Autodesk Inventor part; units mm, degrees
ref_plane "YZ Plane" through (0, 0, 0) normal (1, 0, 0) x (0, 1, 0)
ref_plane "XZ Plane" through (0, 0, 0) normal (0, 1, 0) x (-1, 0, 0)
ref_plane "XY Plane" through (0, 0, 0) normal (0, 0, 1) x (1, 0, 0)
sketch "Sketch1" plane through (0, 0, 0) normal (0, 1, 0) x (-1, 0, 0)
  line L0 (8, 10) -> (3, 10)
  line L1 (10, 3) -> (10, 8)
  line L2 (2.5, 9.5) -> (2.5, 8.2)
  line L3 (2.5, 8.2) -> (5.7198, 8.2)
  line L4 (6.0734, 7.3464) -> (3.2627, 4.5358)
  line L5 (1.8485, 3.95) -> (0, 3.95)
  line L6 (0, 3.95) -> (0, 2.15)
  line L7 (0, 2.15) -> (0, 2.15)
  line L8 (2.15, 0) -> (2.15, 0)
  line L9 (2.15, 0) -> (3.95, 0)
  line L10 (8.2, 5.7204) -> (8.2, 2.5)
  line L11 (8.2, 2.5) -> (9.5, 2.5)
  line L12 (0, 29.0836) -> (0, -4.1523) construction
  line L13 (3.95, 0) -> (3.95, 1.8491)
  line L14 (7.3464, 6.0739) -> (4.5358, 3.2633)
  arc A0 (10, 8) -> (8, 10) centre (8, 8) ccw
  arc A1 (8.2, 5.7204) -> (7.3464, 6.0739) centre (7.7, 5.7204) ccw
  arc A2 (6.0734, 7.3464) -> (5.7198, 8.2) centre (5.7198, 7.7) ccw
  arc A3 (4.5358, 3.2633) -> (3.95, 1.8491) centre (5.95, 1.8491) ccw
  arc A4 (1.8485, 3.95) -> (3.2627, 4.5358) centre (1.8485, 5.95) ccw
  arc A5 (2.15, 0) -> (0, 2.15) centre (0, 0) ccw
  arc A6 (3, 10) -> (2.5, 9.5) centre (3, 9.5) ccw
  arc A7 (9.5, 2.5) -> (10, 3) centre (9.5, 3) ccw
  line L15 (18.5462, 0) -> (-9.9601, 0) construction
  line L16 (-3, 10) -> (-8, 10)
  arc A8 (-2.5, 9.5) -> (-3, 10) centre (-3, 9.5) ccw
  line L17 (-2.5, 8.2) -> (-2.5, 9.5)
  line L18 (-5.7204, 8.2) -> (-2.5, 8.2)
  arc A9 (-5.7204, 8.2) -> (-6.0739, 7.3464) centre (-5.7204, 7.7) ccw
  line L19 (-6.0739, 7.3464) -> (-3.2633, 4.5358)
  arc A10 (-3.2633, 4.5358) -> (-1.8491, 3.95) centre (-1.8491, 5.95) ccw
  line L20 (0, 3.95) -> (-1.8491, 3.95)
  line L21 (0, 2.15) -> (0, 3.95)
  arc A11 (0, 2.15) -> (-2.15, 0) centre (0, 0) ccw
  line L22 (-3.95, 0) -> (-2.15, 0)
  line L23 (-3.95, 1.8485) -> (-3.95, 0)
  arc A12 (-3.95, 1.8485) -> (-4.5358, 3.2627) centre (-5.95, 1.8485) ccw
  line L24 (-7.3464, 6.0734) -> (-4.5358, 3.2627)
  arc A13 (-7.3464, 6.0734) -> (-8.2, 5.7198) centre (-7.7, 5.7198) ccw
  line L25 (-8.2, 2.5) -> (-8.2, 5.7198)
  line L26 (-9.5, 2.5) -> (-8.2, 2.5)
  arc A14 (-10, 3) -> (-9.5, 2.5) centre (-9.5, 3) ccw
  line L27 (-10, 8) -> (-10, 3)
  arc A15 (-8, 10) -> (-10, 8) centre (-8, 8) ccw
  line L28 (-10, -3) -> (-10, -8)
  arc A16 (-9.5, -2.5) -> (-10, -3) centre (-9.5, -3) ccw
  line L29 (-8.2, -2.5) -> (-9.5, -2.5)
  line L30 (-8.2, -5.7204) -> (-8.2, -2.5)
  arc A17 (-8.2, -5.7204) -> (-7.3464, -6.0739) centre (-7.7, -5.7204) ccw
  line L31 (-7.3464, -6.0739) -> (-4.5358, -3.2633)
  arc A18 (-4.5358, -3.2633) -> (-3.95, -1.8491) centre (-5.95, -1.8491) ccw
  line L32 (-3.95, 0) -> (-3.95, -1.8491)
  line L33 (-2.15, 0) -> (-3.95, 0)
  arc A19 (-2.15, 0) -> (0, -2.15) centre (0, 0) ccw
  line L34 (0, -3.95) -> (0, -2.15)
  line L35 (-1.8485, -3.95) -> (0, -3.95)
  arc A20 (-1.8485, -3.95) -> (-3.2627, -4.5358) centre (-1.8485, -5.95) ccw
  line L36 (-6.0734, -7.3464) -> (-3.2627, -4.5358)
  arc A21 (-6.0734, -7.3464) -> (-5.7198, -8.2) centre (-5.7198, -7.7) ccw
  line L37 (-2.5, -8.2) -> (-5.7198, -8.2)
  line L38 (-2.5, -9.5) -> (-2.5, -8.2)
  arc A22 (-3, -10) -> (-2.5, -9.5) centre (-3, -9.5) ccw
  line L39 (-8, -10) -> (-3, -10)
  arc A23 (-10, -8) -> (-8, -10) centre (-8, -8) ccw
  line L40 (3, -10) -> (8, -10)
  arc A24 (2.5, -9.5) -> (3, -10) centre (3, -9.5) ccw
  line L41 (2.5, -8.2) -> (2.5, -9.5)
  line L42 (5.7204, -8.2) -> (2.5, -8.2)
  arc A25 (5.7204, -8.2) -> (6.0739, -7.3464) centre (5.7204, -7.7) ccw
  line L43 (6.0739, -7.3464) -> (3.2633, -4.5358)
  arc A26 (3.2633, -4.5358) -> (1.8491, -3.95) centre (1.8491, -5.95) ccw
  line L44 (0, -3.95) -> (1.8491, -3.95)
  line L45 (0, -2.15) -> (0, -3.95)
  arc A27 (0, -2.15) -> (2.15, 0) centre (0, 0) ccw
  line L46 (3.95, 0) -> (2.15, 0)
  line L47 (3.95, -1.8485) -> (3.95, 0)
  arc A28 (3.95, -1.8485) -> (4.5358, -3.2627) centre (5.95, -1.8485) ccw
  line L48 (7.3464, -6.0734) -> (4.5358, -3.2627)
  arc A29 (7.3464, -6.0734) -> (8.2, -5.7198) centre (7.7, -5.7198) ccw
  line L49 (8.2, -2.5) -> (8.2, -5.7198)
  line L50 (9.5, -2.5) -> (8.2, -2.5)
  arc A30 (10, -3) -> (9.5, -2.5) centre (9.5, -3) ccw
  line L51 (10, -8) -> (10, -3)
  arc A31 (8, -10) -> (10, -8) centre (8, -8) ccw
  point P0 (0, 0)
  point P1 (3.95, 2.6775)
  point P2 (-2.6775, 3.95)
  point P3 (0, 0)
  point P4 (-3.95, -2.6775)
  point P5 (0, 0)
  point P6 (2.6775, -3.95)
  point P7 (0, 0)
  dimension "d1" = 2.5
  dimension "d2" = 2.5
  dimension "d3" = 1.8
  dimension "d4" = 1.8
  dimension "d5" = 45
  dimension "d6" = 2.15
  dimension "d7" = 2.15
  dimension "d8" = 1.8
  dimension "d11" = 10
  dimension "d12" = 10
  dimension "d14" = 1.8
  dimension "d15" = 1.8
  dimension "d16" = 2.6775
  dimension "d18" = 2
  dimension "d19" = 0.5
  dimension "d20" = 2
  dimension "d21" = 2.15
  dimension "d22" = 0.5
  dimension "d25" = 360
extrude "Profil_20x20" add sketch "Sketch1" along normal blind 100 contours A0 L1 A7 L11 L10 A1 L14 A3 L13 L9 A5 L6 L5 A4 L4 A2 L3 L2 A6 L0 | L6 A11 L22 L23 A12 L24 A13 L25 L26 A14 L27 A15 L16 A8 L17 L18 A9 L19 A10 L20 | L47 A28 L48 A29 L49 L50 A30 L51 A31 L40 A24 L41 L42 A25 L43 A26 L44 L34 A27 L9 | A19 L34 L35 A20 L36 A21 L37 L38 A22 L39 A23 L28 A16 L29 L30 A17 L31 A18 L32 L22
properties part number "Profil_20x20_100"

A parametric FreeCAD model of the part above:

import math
import FreeCAD as App
import Part
import Sketcher

doc = App.newDocument("Part")
body = doc.addObject("PartDesign::Body", "Body")

sketch1 = doc.addObject("Sketcher::SketchObject", "Sketch")
body.addObject(sketch1)
sketch1.AttachmentSupport = (doc.XZ_Plane, [""])
sketch1.MapMode = "FlatFace"
sketch1.addGeometry(Part.ArcOfCircle(Part.Circle(App.Vector(-8, 8, 0), App.Vector(0, 0, 1), 2), math.radians(90), math.radians(180)), False)
sketch1.addGeometry(Part.LineSegment(App.Vector(-8, 10, 0), App.Vector(-3, 10, 0)), False)
sketch1.addGeometry(Part.ArcOfCircle(Part.Circle(App.Vector(-3, 9.5, 0), App.Vector(0, 0, 1), 0.5), math.radians(0), math.radians(90)), False)
sketch1.addGeometry(Part.LineSegment(App.Vector(-2.5, 9.5, 0), App.Vector(-2.5, 8.2, 0)), False)
sketch1.addGeometry(Part.LineSegment(App.Vector(-2.5, 8.2, 0), App.Vector(-5.7198, 8.2, 0)), False)
sketch1.addGeometry(Part.ArcOfCircle(Part.Circle(App.Vector(-5.7198, 7.7, 0), App.Vector(0, 0, 1), 0.500066), math.radians(90), math.radians(225)), False)
sketch1.addGeometry(Part.LineSegment(App.Vector(-6.0734, 7.3464, 0), App.Vector(-3.2627, 4.5358, 0)), False)
sketch1.addGeometry(Part.ArcOfCircle(Part.Circle(App.Vector(-1.8485, 5.95, 0), App.Vector(0, 0, 1), 2), math.radians(-135), math.radians(-90)), False)
sketch1.addGeometry(Part.LineSegment(App.Vector(-1.8485, 3.95, 0), App.Vector(1.8491, 3.95, 0)), False)
sketch1.addGeometry(Part.ArcOfCircle(Part.Circle(App.Vector(1.8491, 5.95, 0), App.Vector(0, 0, 1), 1.999981), math.radians(-90), math.radians(-45)), False)
sketch1.addGeometry(Part.LineSegment(App.Vector(3.2633, 4.5358, 0), App.Vector(6.0739, 7.3464, 0)), False)
sketch1.addGeometry(Part.ArcOfCircle(Part.Circle(App.Vector(5.7204, 7.7, 0), App.Vector(0, 0, 1), 0.5), math.radians(-45.008103), math.radians(90)), False)
sketch1.addGeometry(Part.LineSegment(App.Vector(5.7204, 8.2, 0), App.Vector(2.5, 8.2, 0)), False)
sketch1.addGeometry(Part.LineSegment(App.Vector(2.5, 8.2, 0), App.Vector(2.5, 9.5, 0)), False)
sketch1.addGeometry(Part.ArcOfCircle(Part.Circle(App.Vector(3, 9.5, 0), App.Vector(0, 0, 1), 0.5), math.radians(90), math.radians(180)), False)
sketch1.addGeometry(Part.LineSegment(App.Vector(3, 10, 0), App.Vector(8, 10, 0)), False)
sketch1.addGeometry(Part.ArcOfCircle(Part.Circle(App.Vector(8, 8, 0), App.Vector(0, 0, 1), 2), math.radians(0), math.radians(90)), False)
sketch1.addGeometry(Part.LineSegment(App.Vector(10, 8, 0), App.Vector(10, 3, 0)), False)
sketch1.addGeometry(Part.ArcOfCircle(Part.Circle(App.Vector(9.5, 3, 0), App.Vector(0, 0, 1), 0.5), math.radians(-90), math.radians(0)), False)
sketch1.addGeometry(Part.LineSegment(App.Vector(9.5, 2.5, 0), App.Vector(8.2, 2.5, 0)), False)
sketch1.addGeometry(Part.LineSegment(App.Vector(8.2, 2.5, 0), App.Vector(8.2, 5.7198, 0)), False)
sketch1.addGeometry(Part.ArcOfCircle(Part.Circle(App.Vector(7.7, 5.7198, 0), App.Vector(0, 0, 1), 0.500066), math.radians(0), math.radians(135)), False)
sketch1.addGeometry(Part.LineSegment(App.Vector(7.3464, 6.0734, 0), App.Vector(4.5358, 3.2627, 0)), False)
sketch1.addGeometry(Part.ArcOfCircle(Part.Circle(App.Vector(5.95, 1.8485, 0), App.Vector(0, 0, 1), 2), math.radians(135), math.radians(180)), False)
sketch1.addGeometry(Part.LineSegment(App.Vector(3.95, 1.8485, 0), App.Vector(3.95, -1.8491, 0)), False)
sketch1.addGeometry(Part.ArcOfCircle(Part.Circle(App.Vector(5.95, -1.8491, 0), App.Vector(0, 0, 1), 1.999981), math.radians(180), math.radians(225)), False)
sketch1.addGeometry(Part.LineSegment(App.Vector(4.5358, -3.2633, 0), App.Vector(7.3464, -6.0739, 0)), False)
sketch1.addGeometry(Part.ArcOfCircle(Part.Circle(App.Vector(7.7, -5.7204, 0), App.Vector(0, 0, 1), 0.5), math.radians(-135.008103), math.radians(0)), False)
sketch1.addGeometry(Part.LineSegment(App.Vector(8.2, -5.7204, 0), App.Vector(8.2, -2.5, 0)), False)
sketch1.addGeometry(Part.LineSegment(App.Vector(8.2, -2.5, 0), App.Vector(9.5, -2.5, 0)), False)
sketch1.addGeometry(Part.ArcOfCircle(Part.Circle(App.Vector(9.5, -3, 0), App.Vector(0, 0, 1), 0.5), math.radians(0), math.radians(90)), False)
sketch1.addGeometry(Part.LineSegment(App.Vector(10, -3, 0), App.Vector(10, -8, 0)), False)
sketch1.addGeometry(Part.ArcOfCircle(Part.Circle(App.Vector(8, -8, 0), App.Vector(0, 0, 1), 2), math.radians(-90), math.radians(0)), False)
sketch1.addGeometry(Part.LineSegment(App.Vector(8, -10, 0), App.Vector(3, -10, 0)), False)
sketch1.addGeometry(Part.ArcOfCircle(Part.Circle(App.Vector(3, -9.5, 0), App.Vector(0, 0, 1), 0.5), math.radians(180), math.radians(270)), False)
sketch1.addGeometry(Part.LineSegment(App.Vector(2.5, -9.5, 0), App.Vector(2.5, -8.2, 0)), False)
sketch1.addGeometry(Part.LineSegment(App.Vector(2.5, -8.2, 0), App.Vector(5.7198, -8.2, 0)), False)
sketch1.addGeometry(Part.ArcOfCircle(Part.Circle(App.Vector(5.7198, -7.7, 0), App.Vector(0, 0, 1), 0.500066), math.radians(-90), math.radians(45)), False)
sketch1.addGeometry(Part.LineSegment(App.Vector(6.0734, -7.3464, 0), App.Vector(3.2627, -4.5358, 0)), False)
sketch1.addGeometry(Part.ArcOfCircle(Part.Circle(App.Vector(1.8485, -5.95, 0), App.Vector(0, 0, 1), 2), math.radians(45), math.radians(90)), False)
sketch1.addGeometry(Part.LineSegment(App.Vector(1.8485, -3.95, 0), App.Vector(-1.8491, -3.95, 0)), False)
sketch1.addGeometry(Part.ArcOfCircle(Part.Circle(App.Vector(-1.8491, -5.95, 0), App.Vector(0, 0, 1), 1.999981), math.radians(90), math.radians(135)), False)
sketch1.addGeometry(Part.LineSegment(App.Vector(-3.2633, -4.5358, 0), App.Vector(-6.0739, -7.3464, 0)), False)
sketch1.addGeometry(Part.ArcOfCircle(Part.Circle(App.Vector(-5.7204, -7.7, 0), App.Vector(0, 0, 1), 0.5), math.radians(134.991897), math.radians(270)), False)
sketch1.addGeometry(Part.LineSegment(App.Vector(-5.7204, -8.2, 0), App.Vector(-2.5, -8.2, 0)), False)
sketch1.addGeometry(Part.LineSegment(App.Vector(-2.5, -8.2, 0), App.Vector(-2.5, -9.5, 0)), False)
sketch1.addGeometry(Part.ArcOfCircle(Part.Circle(App.Vector(-3, -9.5, 0), App.Vector(0, 0, 1), 0.5), math.radians(-90), math.radians(0)), False)
sketch1.addGeometry(Part.LineSegment(App.Vector(-3, -10, 0), App.Vector(-8, -10, 0)), False)
sketch1.addGeometry(Part.ArcOfCircle(Part.Circle(App.Vector(-8, -8, 0), App.Vector(0, 0, 1), 2), math.radians(180), math.radians(270)), False)
sketch1.addGeometry(Part.LineSegment(App.Vector(-10, -8, 0), App.Vector(-10, -3, 0)), False)
sketch1.addGeometry(Part.ArcOfCircle(Part.Circle(App.Vector(-9.5, -3, 0), App.Vector(0, 0, 1), 0.5), math.radians(90), math.radians(180)), False)
sketch1.addGeometry(Part.LineSegment(App.Vector(-9.5, -2.5, 0), App.Vector(-8.2, -2.5, 0)), False)
sketch1.addGeometry(Part.LineSegment(App.Vector(-8.2, -2.5, 0), App.Vector(-8.2, -5.7198, 0)), False)
sketch1.addGeometry(Part.ArcOfCircle(Part.Circle(App.Vector(-7.7, -5.7198, 0), App.Vector(0, 0, 1), 0.500066), math.radians(180), math.radians(315)), False)
sketch1.addGeometry(Part.LineSegment(App.Vector(-7.3464, -6.0734, 0), App.Vector(-4.5358, -3.2627, 0)), False)
sketch1.addGeometry(Part.ArcOfCircle(Part.Circle(App.Vector(-5.95, -1.8485, 0), App.Vector(0, 0, 1), 2), math.radians(-45), math.radians(0)), False)
sketch1.addGeometry(Part.LineSegment(App.Vector(-3.95, -1.8485, 0), App.Vector(-3.95, 1.8491, 0)), False)
sketch1.addGeometry(Part.ArcOfCircle(Part.Circle(App.Vector(-5.95, 1.8491, 0), App.Vector(0, 0, 1), 1.999981), math.radians(0), math.radians(45)), False)
sketch1.addGeometry(Part.LineSegment(App.Vector(-4.5358, 3.2633, 0), App.Vector(-7.3464, 6.0739, 0)), False)
sketch1.addGeometry(Part.ArcOfCircle(Part.Circle(App.Vector(-7.7, 5.7204, 0), App.Vector(0, 0, 1), 0.5), math.radians(44.991897), math.radians(180)), False)
sketch1.addGeometry(Part.LineSegment(App.Vector(-8.2, 5.7204, 0), App.Vector(-8.2, 2.5, 0)), False)
sketch1.addGeometry(Part.LineSegment(App.Vector(-8.2, 2.5, 0), App.Vector(-9.5, 2.5, 0)), False)
sketch1.addGeometry(Part.ArcOfCircle(Part.Circle(App.Vector(-9.5, 3, 0), App.Vector(0, 0, 1), 0.5), math.radians(180), math.radians(270)), False)
sketch1.addGeometry(Part.LineSegment(App.Vector(-10, 3, 0), App.Vector(-10, 8, 0)), False)
sketch1.addGeometry(Part.Circle(App.Vector(0, 0, 0), App.Vector(0, 0, 1), 2.15), False)
sketch1.addConstraint(Sketcher.Constraint("Tangent", 0, 1, 1, 1))
sketch1.addConstraint(Sketcher.Constraint("Tangent", 1, 2, 2, 2))
sketch1.addConstraint(Sketcher.Constraint("Tangent", 2, 1, 3, 1))
sketch1.addConstraint(Sketcher.Constraint("Coincident", 3, 2, 4, 1))
sketch1.addConstraint(Sketcher.Constraint("Tangent", 4, 2, 5, 1))
sketch1.addConstraint(Sketcher.Constraint("Tangent", 5, 2, 6, 1))
sketch1.addConstraint(Sketcher.Constraint("Tangent", 6, 2, 7, 1))
sketch1.addConstraint(Sketcher.Constraint("Tangent", 7, 2, 8, 1))
sketch1.addConstraint(Sketcher.Constraint("Tangent", 8, 2, 9, 1))
sketch1.addConstraint(Sketcher.Constraint("Tangent", 9, 2, 10, 1))
sketch1.addConstraint(Sketcher.Constraint("Tangent", 10, 2, 11, 1))
sketch1.addConstraint(Sketcher.Constraint("Tangent", 11, 2, 12, 1))
sketch1.addConstraint(Sketcher.Constraint("Coincident", 12, 2, 13, 1))
sketch1.addConstraint(Sketcher.Constraint("Tangent", 13, 2, 14, 2))
sketch1.addConstraint(Sketcher.Constraint("Tangent", 14, 1, 15, 1))
sketch1.addConstraint(Sketcher.Constraint("Tangent", 15, 2, 16, 2))
sketch1.addConstraint(Sketcher.Constraint("Tangent", 16, 1, 17, 1))
sketch1.addConstraint(Sketcher.Constraint("Tangent", 17, 2, 18, 2))
sketch1.addConstraint(Sketcher.Constraint("Tangent", 18, 1, 19, 1))
sketch1.addConstraint(Sketcher.Constraint("Coincident", 19, 2, 20, 1))
sketch1.addConstraint(Sketcher.Constraint("Tangent", 20, 2, 21, 1))
sketch1.addConstraint(Sketcher.Constraint("Tangent", 21, 2, 22, 1))
sketch1.addConstraint(Sketcher.Constraint("Tangent", 22, 2, 23, 1))
sketch1.addConstraint(Sketcher.Constraint("Tangent", 23, 2, 24, 1))
sketch1.addConstraint(Sketcher.Constraint("Tangent", 24, 2, 25, 1))
sketch1.addConstraint(Sketcher.Constraint("Tangent", 25, 2, 26, 1))
sketch1.addConstraint(Sketcher.Constraint("Tangent", 26, 2, 27, 1))
sketch1.addConstraint(Sketcher.Constraint("Tangent", 27, 2, 28, 1))
sketch1.addConstraint(Sketcher.Constraint("Coincident", 28, 2, 29, 1))
sketch1.addConstraint(Sketcher.Constraint("Tangent", 29, 2, 30, 2))
sketch1.addConstraint(Sketcher.Constraint("Tangent", 30, 1, 31, 1))
sketch1.addConstraint(Sketcher.Constraint("Tangent", 31, 2, 32, 2))
sketch1.addConstraint(Sketcher.Constraint("Tangent", 32, 1, 33, 1))
sketch1.addConstraint(Sketcher.Constraint("Tangent", 33, 2, 34, 2))
sketch1.addConstraint(Sketcher.Constraint("Tangent", 34, 1, 35, 1))
sketch1.addConstraint(Sketcher.Constraint("Coincident", 35, 2, 36, 1))
sketch1.addConstraint(Sketcher.Constraint("Tangent", 36, 2, 37, 1))
sketch1.addConstraint(Sketcher.Constraint("Tangent", 37, 2, 38, 1))
sketch1.addConstraint(Sketcher.Constraint("Tangent", 38, 2, 39, 1))
sketch1.addConstraint(Sketcher.Constraint("Tangent", 39, 2, 40, 1))
sketch1.addConstraint(Sketcher.Constraint("Tangent", 40, 2, 41, 1))
sketch1.addConstraint(Sketcher.Constraint("Tangent", 41, 2, 42, 1))
sketch1.addConstraint(Sketcher.Constraint("Tangent", 42, 2, 43, 1))
sketch1.addConstraint(Sketcher.Constraint("Tangent", 43, 2, 44, 1))
sketch1.addConstraint(Sketcher.Constraint("Coincident", 44, 2, 45, 1))
sketch1.addConstraint(Sketcher.Constraint("Tangent", 45, 2, 46, 2))
sketch1.addConstraint(Sketcher.Constraint("Tangent", 46, 1, 47, 1))
sketch1.addConstraint(Sketcher.Constraint("Tangent", 47, 2, 48, 2))
sketch1.addConstraint(Sketcher.Constraint("Tangent", 48, 1, 49, 1))
sketch1.addConstraint(Sketcher.Constraint("Tangent", 49, 2, 50, 2))
sketch1.addConstraint(Sketcher.Constraint("Tangent", 50, 1, 51, 1))
sketch1.addConstraint(Sketcher.Constraint("Coincident", 51, 2, 52, 1))
sketch1.addConstraint(Sketcher.Constraint("Tangent", 52, 2, 53, 1))
sketch1.addConstraint(Sketcher.Constraint("Tangent", 53, 2, 54, 1))
sketch1.addConstraint(Sketcher.Constraint("Tangent", 54, 2, 55, 1))
sketch1.addConstraint(Sketcher.Constraint("Tangent", 55, 2, 56, 1))
sketch1.addConstraint(Sketcher.Constraint("Tangent", 56, 2, 57, 1))
sketch1.addConstraint(Sketcher.Constraint("Tangent", 57, 2, 58, 1))
sketch1.addConstraint(Sketcher.Constraint("Tangent", 58, 2, 59, 1))
sketch1.addConstraint(Sketcher.Constraint("Tangent", 59, 2, 60, 1))
sketch1.addConstraint(Sketcher.Constraint("Coincident", 60, 2, 61, 1))
sketch1.addConstraint(Sketcher.Constraint("Tangent", 61, 2, 62, 2))
sketch1.addConstraint(Sketcher.Constraint("Tangent", 62, 1, 63, 1))
sketch1.addConstraint(Sketcher.Constraint("Tangent", 63, 2, 0, 2))
sketch1.addConstraint(Sketcher.Constraint("Horizontal", 1))
sketch1.addConstraint(Sketcher.Constraint("Vertical", 3))
sketch1.addConstraint(Sketcher.Constraint("Horizontal", 4))
sketch1.addConstraint(Sketcher.Constraint("Horizontal", 8))
sketch1.addConstraint(Sketcher.Constraint("Horizontal", 12))
sketch1.addConstraint(Sketcher.Constraint("Vertical", 13))
sketch1.addConstraint(Sketcher.Constraint("Horizontal", 15))
sketch1.addConstraint(Sketcher.Constraint("Vertical", 17))
sketch1.addConstraint(Sketcher.Constraint("Horizontal", 19))
sketch1.addConstraint(Sketcher.Constraint("Vertical", 20))
sketch1.addConstraint(Sketcher.Constraint("Vertical", 24))
sketch1.addConstraint(Sketcher.Constraint("Vertical", 28))
sketch1.addConstraint(Sketcher.Constraint("Horizontal", 29))
sketch1.addConstraint(Sketcher.Constraint("Vertical", 31))
sketch1.addConstraint(Sketcher.Constraint("Horizontal", 33))
sketch1.addConstraint(Sketcher.Constraint("Vertical", 35))
sketch1.addConstraint(Sketcher.Constraint("Horizontal", 36))
sketch1.addConstraint(Sketcher.Constraint("Horizontal", 40))
sketch1.addConstraint(Sketcher.Constraint("Horizontal", 44))
sketch1.addConstraint(Sketcher.Constraint("Vertical", 45))
sketch1.addConstraint(Sketcher.Constraint("Horizontal", 47))
sketch1.addConstraint(Sketcher.Constraint("Vertical", 49))
sketch1.addConstraint(Sketcher.Constraint("Horizontal", 51))
sketch1.addConstraint(Sketcher.Constraint("Vertical", 52))
sketch1.addConstraint(Sketcher.Constraint("Vertical", 56))
sketch1.addConstraint(Sketcher.Constraint("Vertical", 60))
sketch1.addConstraint(Sketcher.Constraint("Horizontal", 61))
sketch1.addConstraint(Sketcher.Constraint("Vertical", 63))
sketch1.addConstraint(Sketcher.Constraint("Coincident", 64, 3, -1, 1))
sketch1.addConstraint(Sketcher.Constraint("Equal", 2, 5))
sketch1.addConstraint(Sketcher.Constraint("Equal", 0, 7))
sketch1.addConstraint(Sketcher.Constraint("Equal", 7, 9))
sketch1.addConstraint(Sketcher.Constraint("Equal", 5, 11))
sketch1.addConstraint(Sketcher.Constraint("Equal", 11, 14))
sketch1.addConstraint(Sketcher.Constraint("Equal", 9, 16))
sketch1.addConstraint(Sketcher.Constraint("Equal", 14, 18))
sketch1.addConstraint(Sketcher.Constraint("Equal", 18, 21))
sketch1.addConstraint(Sketcher.Constraint("Equal", 16, 23))
sketch1.addConstraint(Sketcher.Constraint("Equal", 23, 25))
sketch1.addConstraint(Sketcher.Constraint("Equal", 21, 27))
sketch1.addConstraint(Sketcher.Constraint("Equal", 27, 30))
sketch1.addConstraint(Sketcher.Constraint("Equal", 25, 32))
sketch1.addConstraint(Sketcher.Constraint("Equal", 30, 34))
sketch1.addConstraint(Sketcher.Constraint("Equal", 34, 37))
sketch1.addConstraint(Sketcher.Constraint("Equal", 32, 39))
sketch1.addConstraint(Sketcher.Constraint("Equal", 39, 41))
sketch1.addConstraint(Sketcher.Constraint("Equal", 37, 43))
sketch1.addConstraint(Sketcher.Constraint("Equal", 43, 46))
sketch1.addConstraint(Sketcher.Constraint("Equal", 41, 48))
sketch1.addConstraint(Sketcher.Constraint("Equal", 46, 50))
sketch1.addConstraint(Sketcher.Constraint("Equal", 50, 53))
sketch1.addConstraint(Sketcher.Constraint("Equal", 48, 55))
sketch1.addConstraint(Sketcher.Constraint("Equal", 55, 57))
sketch1.addConstraint(Sketcher.Constraint("Equal", 53, 59))
sketch1.addConstraint(Sketcher.Constraint("Equal", 59, 62))
sketch1.addConstraint(Sketcher.Constraint("Symmetric", 0, 3, 32, 3, -1, 1))
sketch1.addConstraint(Sketcher.Constraint("Symmetric", 5, 3, 37, 3, -1, 1))
sketch1.addConstraint(Sketcher.Constraint("Symmetric", 7, 3, 39, 3, -1, 1))
sketch1.addConstraint(Sketcher.Constraint("Symmetric", 11, 3, 43, 3, -1, 1))
sketch1.addConstraint(Sketcher.Constraint("Symmetric", 14, 3, 46, 3, -1, 1))
sketch1.addConstraint(Sketcher.Constraint("Symmetric", 18, 3, 50, 3, -1, 1))
sketch1.addConstraint(Sketcher.Constraint("Symmetric", 21, 3, 53, 3, -1, 1))
sketch1.addConstraint(Sketcher.Constraint("Symmetric", 23, 3, 55, 3, -1, 1))
sketch1.addConstraint(Sketcher.Constraint("Symmetric", 27, 3, 59, 3, -1, 1))
sketch1.addConstraint(Sketcher.Constraint("Symmetric", 2, 3, 14, 3, -2))
sketch1.addConstraint(Sketcher.Constraint("Symmetric", 30, 3, 50, 3, -2))
sketch1.addConstraint(Sketcher.Constraint("Symmetric", 35, 2, 44, 2, -2))
sketch1.addConstraint(Sketcher.Constraint("Symmetric", 19, 2, 60, 2, -2))
sketch1.addConstraint(Sketcher.Constraint("Perpendicular", 6, 10))
sketch1.addConstraint(Sketcher.Constraint("Parallel", 10, 22))
sketch1.addConstraint(Sketcher.Constraint("Perpendicular", 22, 26))
sketch1.addConstraint(Sketcher.Constraint("Perpendicular", 38, 42))
sketch1.addConstraint(Sketcher.Constraint("Perpendicular", 54, 58))
sketch1.addConstraint(Sketcher.Constraint("Horizontal", 6, 2, 9, 2))
sketch1.addConstraint(Sketcher.Constraint("Equal", 61, 3))
sketch1.addConstraint(Sketcher.Constraint("Equal", 47, 17))
sketch1.addConstraint(Sketcher.Constraint("Equal", 36, 20))
sketch1.addConstraint(Sketcher.Constraint("Equal", 40, 24))
sketch1.addConstraint(Sketcher.Constraint("Equal", 44, 28))
sketch1.addConstraint(Sketcher.Constraint("Equal", 10, 22))
sketch1.addConstraint(Sketcher.Constraint("Radius", 0, 2.0))
sketch1.addConstraint(Sketcher.Constraint("Diameter", 64, 4.3))
sketch1.addConstraint(Sketcher.Constraint("Radius", 2, 0.5))
sketch1.addConstraint(Sketcher.Constraint("DistanceY", -1, 1, 0, 1, 10.0))
sketch1.addConstraint(Sketcher.Constraint("DistanceX", 2, 1, -1, 1, 2.5))
sketch1.addConstraint(Sketcher.Constraint("DistanceX", 19, 2, 19, 1, 1.3))
sketch1.addConstraint(Sketcher.Constraint("DistanceY", -1, 1, 7, 3, 5.95))
sketch1.addConstraint(Sketcher.Constraint("DistanceX", 4, 2, 4, 1, 3.2198))
sketch1.addConstraint(Sketcher.Constraint("DistanceX", 8, 1, 8, 2, 3.6976))
pad1 = doc.addObject("PartDesign::Pad", "Pad")
body.addObject(pad1)
pad1.Profile = sketch1
pad1.Length = 100
pad1.Reversed = True

doc.recompute()
